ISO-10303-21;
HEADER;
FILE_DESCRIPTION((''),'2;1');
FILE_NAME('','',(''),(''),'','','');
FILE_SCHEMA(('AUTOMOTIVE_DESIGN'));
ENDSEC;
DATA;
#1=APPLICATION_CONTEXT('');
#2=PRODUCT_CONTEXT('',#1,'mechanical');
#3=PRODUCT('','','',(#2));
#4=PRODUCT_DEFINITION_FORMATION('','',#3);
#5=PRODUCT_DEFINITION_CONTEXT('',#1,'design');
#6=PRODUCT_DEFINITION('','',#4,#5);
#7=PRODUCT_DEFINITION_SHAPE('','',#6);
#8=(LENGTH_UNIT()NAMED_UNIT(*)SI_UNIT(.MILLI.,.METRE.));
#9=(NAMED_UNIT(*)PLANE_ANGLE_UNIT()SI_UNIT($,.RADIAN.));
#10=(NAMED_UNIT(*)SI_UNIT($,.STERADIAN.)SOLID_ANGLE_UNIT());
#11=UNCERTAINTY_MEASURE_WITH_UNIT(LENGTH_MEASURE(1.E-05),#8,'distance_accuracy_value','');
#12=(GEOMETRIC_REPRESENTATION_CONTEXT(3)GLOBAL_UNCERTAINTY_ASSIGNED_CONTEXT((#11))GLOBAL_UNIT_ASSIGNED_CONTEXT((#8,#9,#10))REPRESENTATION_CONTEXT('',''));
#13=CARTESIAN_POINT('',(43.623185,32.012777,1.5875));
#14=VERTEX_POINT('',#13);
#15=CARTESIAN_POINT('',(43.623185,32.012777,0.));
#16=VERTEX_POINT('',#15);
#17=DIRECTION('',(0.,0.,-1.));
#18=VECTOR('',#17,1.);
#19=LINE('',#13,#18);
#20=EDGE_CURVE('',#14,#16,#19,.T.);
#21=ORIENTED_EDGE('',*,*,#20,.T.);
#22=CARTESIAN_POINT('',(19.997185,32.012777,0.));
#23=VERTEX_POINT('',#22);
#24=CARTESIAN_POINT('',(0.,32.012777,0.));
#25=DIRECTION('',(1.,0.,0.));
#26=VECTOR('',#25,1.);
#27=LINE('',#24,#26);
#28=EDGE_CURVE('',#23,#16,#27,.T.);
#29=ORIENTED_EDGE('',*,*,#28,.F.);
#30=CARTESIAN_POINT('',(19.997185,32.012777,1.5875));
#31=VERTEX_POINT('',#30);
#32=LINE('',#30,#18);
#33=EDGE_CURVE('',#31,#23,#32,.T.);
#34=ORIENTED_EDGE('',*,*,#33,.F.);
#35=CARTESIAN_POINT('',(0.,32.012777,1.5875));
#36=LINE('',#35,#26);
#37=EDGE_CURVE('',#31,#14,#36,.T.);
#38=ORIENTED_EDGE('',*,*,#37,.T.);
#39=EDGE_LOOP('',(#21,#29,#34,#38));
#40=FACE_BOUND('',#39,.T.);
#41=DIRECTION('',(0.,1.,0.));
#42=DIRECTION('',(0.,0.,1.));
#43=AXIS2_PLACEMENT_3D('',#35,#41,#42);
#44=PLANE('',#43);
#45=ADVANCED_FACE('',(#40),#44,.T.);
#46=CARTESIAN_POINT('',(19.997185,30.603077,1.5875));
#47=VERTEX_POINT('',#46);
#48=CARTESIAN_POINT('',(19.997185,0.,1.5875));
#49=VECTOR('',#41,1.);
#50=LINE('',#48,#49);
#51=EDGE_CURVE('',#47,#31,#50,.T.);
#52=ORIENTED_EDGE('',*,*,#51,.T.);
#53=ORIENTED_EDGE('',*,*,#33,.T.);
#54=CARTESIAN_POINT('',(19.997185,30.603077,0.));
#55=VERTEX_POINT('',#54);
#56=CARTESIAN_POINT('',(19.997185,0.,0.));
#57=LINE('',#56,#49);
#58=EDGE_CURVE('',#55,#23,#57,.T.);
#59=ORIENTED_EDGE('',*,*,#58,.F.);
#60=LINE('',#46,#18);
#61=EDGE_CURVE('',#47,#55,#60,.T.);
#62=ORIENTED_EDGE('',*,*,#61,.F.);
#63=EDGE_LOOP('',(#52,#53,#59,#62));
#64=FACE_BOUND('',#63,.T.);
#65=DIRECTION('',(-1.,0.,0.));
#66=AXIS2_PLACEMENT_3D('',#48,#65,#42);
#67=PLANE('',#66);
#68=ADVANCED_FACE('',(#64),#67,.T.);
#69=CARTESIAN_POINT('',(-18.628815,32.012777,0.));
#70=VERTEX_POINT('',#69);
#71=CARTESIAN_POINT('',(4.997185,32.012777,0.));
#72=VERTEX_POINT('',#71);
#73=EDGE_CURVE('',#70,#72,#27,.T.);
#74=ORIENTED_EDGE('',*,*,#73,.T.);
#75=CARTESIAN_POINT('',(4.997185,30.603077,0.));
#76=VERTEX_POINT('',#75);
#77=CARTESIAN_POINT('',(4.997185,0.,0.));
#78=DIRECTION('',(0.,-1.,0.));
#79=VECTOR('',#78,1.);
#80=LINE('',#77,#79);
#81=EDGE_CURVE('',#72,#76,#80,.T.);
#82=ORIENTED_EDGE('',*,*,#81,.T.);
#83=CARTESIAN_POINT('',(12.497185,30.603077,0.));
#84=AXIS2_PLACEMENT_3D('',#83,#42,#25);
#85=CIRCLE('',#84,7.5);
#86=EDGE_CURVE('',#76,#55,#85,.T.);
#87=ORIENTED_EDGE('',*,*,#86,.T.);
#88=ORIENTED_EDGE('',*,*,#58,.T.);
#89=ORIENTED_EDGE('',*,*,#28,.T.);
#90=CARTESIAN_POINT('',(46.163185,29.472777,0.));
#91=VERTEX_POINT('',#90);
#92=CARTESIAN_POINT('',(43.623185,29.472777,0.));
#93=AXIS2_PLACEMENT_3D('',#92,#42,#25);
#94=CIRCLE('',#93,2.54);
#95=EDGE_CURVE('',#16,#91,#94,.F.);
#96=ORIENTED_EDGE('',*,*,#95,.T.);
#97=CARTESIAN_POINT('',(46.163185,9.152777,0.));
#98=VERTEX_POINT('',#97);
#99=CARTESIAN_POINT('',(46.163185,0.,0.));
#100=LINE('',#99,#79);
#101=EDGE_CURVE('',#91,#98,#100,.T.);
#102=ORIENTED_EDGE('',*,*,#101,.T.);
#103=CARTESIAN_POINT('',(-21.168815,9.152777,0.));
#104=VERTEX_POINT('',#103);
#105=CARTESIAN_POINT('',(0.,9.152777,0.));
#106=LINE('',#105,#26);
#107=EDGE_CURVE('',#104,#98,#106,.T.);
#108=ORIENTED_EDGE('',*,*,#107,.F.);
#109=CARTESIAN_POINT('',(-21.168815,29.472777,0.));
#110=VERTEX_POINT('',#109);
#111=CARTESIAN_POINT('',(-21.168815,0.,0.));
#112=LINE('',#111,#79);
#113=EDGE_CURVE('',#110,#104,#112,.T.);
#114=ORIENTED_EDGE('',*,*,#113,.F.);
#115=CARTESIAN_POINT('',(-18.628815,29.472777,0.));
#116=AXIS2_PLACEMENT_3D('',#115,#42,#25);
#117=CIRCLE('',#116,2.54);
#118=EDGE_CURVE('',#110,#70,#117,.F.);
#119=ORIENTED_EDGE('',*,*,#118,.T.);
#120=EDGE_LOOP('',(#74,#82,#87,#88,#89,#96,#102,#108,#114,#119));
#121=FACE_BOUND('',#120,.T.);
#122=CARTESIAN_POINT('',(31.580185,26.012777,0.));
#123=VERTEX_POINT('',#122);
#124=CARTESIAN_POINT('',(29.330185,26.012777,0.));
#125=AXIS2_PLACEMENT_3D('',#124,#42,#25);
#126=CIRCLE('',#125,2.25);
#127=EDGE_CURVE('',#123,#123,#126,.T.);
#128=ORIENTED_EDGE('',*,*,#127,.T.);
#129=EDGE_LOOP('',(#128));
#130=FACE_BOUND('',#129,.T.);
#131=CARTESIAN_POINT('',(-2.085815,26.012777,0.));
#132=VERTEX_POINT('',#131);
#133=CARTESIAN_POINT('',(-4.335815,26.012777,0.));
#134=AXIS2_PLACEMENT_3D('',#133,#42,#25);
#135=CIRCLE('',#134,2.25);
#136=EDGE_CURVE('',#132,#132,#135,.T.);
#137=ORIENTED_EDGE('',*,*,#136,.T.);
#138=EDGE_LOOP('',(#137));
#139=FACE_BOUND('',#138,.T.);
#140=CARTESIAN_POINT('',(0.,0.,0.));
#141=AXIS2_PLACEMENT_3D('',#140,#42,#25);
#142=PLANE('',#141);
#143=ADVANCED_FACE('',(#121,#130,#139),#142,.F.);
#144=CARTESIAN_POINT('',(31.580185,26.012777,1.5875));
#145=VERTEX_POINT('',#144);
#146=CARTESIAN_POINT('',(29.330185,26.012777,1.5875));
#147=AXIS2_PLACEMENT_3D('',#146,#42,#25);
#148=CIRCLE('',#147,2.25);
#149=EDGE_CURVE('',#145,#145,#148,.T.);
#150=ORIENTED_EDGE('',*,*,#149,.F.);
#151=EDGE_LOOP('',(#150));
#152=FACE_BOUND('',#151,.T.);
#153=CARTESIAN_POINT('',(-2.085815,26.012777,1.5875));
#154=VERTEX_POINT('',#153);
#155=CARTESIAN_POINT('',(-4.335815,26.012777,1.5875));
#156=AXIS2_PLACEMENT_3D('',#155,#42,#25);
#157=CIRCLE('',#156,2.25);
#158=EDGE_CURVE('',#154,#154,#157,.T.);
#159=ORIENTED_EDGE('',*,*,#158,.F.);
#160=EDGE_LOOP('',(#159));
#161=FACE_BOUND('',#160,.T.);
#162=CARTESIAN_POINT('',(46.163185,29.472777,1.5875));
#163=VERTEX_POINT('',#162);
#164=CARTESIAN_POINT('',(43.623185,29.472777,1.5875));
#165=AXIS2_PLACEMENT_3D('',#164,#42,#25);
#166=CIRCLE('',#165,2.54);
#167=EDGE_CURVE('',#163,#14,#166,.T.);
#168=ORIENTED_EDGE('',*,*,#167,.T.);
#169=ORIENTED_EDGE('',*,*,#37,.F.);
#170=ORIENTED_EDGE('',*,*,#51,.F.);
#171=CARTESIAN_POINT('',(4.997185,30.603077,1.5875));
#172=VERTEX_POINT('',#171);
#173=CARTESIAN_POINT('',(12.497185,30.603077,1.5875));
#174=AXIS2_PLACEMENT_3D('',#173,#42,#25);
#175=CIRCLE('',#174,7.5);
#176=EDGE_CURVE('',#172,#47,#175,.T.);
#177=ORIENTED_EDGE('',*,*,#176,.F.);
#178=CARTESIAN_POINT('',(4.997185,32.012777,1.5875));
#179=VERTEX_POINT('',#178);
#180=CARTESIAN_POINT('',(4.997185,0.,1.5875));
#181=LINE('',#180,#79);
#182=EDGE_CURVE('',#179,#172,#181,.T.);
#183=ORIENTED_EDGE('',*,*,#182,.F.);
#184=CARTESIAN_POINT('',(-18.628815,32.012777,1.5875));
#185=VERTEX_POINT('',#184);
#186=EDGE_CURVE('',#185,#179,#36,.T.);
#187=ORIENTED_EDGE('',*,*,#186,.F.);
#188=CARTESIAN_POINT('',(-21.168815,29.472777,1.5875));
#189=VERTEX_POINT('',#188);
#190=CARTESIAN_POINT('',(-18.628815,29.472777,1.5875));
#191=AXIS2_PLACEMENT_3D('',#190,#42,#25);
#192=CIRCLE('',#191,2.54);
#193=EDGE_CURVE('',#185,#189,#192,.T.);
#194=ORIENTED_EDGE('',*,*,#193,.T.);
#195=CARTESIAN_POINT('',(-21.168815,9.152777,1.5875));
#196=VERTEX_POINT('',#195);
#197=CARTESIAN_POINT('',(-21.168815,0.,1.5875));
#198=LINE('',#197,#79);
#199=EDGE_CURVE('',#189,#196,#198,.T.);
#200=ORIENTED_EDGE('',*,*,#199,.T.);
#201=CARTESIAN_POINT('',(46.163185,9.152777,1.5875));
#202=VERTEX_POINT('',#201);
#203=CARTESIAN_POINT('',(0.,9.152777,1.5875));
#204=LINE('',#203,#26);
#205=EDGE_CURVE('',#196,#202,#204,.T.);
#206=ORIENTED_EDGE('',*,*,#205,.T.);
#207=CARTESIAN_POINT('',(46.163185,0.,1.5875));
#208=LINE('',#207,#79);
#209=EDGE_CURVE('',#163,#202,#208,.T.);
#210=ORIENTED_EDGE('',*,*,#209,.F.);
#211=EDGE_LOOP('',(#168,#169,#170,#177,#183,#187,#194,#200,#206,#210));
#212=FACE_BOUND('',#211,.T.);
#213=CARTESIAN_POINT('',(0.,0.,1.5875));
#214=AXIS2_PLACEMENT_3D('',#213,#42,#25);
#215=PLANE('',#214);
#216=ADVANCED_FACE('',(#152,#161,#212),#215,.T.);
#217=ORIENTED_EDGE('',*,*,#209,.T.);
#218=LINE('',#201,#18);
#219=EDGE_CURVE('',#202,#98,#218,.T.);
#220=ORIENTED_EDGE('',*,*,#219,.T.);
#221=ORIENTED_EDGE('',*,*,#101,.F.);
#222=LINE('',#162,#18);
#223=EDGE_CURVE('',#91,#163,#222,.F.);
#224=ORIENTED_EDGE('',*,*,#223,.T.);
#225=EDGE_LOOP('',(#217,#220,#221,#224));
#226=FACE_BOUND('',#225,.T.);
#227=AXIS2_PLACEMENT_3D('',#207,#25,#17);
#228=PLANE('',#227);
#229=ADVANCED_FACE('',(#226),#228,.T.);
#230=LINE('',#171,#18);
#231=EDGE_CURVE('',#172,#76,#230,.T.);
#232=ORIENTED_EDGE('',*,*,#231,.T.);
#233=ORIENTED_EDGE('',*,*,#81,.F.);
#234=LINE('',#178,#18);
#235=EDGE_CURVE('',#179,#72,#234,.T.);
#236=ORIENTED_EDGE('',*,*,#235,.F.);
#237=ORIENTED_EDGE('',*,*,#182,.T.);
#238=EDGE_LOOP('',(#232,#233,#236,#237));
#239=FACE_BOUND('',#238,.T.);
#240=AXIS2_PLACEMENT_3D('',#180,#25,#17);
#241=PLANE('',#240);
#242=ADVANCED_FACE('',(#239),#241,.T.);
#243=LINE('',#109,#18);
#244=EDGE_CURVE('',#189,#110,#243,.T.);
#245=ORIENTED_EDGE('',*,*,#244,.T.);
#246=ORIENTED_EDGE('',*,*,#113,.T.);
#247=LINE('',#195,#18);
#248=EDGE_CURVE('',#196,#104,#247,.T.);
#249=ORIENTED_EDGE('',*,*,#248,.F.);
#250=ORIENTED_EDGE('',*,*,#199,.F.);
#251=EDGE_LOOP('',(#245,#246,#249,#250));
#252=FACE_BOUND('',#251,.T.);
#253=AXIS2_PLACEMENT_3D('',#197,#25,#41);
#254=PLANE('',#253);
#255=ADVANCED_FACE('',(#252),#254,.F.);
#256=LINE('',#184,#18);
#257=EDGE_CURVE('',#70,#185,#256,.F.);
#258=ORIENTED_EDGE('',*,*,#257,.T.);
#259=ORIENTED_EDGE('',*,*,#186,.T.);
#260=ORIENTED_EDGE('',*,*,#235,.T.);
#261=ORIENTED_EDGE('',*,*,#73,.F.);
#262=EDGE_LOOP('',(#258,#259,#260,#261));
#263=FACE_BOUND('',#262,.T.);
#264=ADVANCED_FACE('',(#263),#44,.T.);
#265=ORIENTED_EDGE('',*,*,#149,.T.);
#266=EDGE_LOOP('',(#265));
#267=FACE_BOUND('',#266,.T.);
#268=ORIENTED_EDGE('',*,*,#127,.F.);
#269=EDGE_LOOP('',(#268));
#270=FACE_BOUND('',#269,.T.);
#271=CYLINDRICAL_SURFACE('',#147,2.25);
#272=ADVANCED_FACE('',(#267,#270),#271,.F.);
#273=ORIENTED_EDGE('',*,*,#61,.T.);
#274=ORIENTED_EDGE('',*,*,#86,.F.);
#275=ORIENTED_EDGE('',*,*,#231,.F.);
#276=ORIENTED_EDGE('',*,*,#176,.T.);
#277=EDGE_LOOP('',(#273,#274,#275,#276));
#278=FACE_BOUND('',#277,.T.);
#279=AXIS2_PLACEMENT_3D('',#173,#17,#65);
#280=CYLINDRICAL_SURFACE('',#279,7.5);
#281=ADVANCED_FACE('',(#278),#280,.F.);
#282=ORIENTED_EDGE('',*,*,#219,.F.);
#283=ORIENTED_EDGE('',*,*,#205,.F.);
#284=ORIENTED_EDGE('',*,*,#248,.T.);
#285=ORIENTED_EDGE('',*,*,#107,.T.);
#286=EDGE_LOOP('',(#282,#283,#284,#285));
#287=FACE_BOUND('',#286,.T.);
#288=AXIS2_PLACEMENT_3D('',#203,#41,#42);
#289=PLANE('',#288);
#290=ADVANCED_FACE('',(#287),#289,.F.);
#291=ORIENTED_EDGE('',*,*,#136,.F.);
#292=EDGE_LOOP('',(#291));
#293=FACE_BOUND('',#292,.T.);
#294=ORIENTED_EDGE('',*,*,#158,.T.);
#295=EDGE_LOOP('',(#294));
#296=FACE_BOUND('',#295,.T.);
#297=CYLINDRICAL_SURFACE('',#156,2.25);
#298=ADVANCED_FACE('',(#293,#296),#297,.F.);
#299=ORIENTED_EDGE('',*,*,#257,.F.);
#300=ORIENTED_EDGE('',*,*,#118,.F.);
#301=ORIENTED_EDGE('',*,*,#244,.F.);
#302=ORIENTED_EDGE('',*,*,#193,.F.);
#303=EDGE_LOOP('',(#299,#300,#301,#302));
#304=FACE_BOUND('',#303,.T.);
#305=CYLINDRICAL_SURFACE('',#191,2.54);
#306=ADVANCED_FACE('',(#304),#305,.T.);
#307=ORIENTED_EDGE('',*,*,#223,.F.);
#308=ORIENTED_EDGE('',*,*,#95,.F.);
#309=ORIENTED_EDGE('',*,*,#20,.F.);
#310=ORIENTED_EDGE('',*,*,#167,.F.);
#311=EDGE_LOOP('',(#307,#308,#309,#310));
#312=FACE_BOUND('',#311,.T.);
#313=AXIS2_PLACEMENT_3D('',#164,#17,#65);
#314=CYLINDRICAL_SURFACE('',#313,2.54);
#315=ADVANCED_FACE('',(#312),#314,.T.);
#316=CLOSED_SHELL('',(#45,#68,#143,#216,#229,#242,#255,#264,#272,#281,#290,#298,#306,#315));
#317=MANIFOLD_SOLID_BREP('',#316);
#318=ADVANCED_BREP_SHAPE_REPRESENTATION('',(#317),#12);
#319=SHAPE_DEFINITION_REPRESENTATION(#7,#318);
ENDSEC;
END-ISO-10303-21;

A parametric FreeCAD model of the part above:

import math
import FreeCAD as App
import Part
import Sketcher
Q = App.Units.Quantity


def edges_at(feature, points):
    """Names of the edges that pass closest to the given points."""
    edges = feature.Shape.Edges
    near = lambda p: min(range(len(edges)), key=lambda i: edges[i].distToShape(Part.Vertex(*p))[0])
    return sorted({f"Edge{near(p) + 1}" for p in points})

doc = App.newDocument("Part")
params = doc.addObject("Spreadsheet::Sheet", "Params")
for row, (alias, value) in enumerate([
    ("sketch1_height", "0.9 in"),
    ("pad1_length", "0.0625 in"),
    ("hole_diameter", "4.5 mm"),
    ("fillet_radius", "0.1 in"),
], start=1):
    params.set(f"A{row}", alias)
    params.set(f"B{row}", "=" + value)
    params.setAlias(f"B{row}", alias)

body = doc.addObject("PartDesign::Body", "Body")

sketch1 = body.newObject("Sketcher::SketchObject", "Sketch")
sketch1.AttachmentSupport = (doc.getObject("XY_Plane"), [""])
sketch1.MapMode = "FlatFace"
sketch1.addGeometry([
    Part.LineSegment(App.Vector(5, 32, 0), App.Vector(-21.2, 32, 0)),
    Part.LineSegment(App.Vector(-21.2, 32, 0), App.Vector(-21.2, 9.2, 0)),
    Part.LineSegment(App.Vector(-21.2, 9.2, 0), App.Vector(46.2, 9.2, 0)),
    Part.LineSegment(App.Vector(46.2, 9.2, 0), App.Vector(46.2, 32, 0)),
    Part.LineSegment(App.Vector(46.2, 32, 0), App.Vector(20, 32, 0)),
    Part.LineSegment(App.Vector(20, 32, 0), App.Vector(20, 30.6, 0)),
    Part.ArcOfCircle(Part.Circle(App.Vector(12.5, 30.6, 0), App.Vector(0, 0, 1), 7.5), math.radians(180), math.radians(360)),
    Part.LineSegment(App.Vector(5, 30.6, 0), App.Vector(5, 32, 0)),
], False)
sketch1.addConstraint([
    Sketcher.Constraint("Coincident", 0, 2, 1, 1),
    Sketcher.Constraint("Coincident", 1, 2, 2, 1),
    Sketcher.Constraint("Coincident", 2, 2, 3, 1),
    Sketcher.Constraint("Coincident", 3, 2, 4, 1),
    Sketcher.Constraint("Coincident", 4, 2, 5, 1),
    Sketcher.Constraint("Tangent", 5, 2, 6, 2),
    Sketcher.Constraint("Tangent", 6, 1, 7, 1),
    Sketcher.Constraint("Coincident", 7, 2, 0, 1),
    Sketcher.Constraint("Horizontal", 0),
    Sketcher.Constraint("Vertical", 1),
    Sketcher.Constraint("Horizontal", 2),
    Sketcher.Constraint("Vertical", 3),
    Sketcher.Constraint("Horizontal", 4),
    Sketcher.Constraint("Vertical", 5),
    Sketcher.Constraint("Vertical", 7),
    Sketcher.Constraint("Horizontal", 0, 2, 3, 2),
    Sketcher.Constraint("Equal", 0, 4),
    Sketcher.Constraint("DistanceY", 1, 2, 1, 1, Q("0.9 in")),
    Sketcher.Constraint("Radius", 6, Q("7.5 mm")),
    Sketcher.Constraint("DistanceY", 5, 2, 5, 1, Q("0.0555 in")),
    Sketcher.Constraint("DistanceX", 0, 2, 0, 1, Q("26.166 mm")),
    Sketcher.Constraint("DistanceX", -1, 1, 6, 3, Q("12.497185 mm")),
    Sketcher.Constraint("DistanceY", -1, 1, 6, 3, Q("30.603077 mm")),
])
sketch1.setExpression("Constraints[17]", "Params.sketch1_height")
pad1 = body.newObject("PartDesign::Pad", "Pad")
pad1.Profile = sketch1
pad1.setExpression("Length", "Params.pad1_length")

sketch2 = body.newObject("Sketcher::SketchObject", "Sketch001")
sketch2.AttachmentSupport = (doc.getObject("XY_Plane"), [""])
sketch2.MapMode = "FlatFace"
sketch2.AttachmentOffset = App.Placement(App.Vector(0, 0, 0.0625 * 25.4), App.Rotation())
sketch2.addGeometry([
    Part.Circle(App.Vector(-4.3, 26, 0), App.Vector(0, 0, 1), 2.2),
    Part.Circle(App.Vector(29.3, 26, 0), App.Vector(0, 0, 1), 2.2),
], False)
sketch2.addConstraint([
    Sketcher.Constraint("Equal", 0, 1),
    Sketcher.Constraint("Horizontal", 0, 3, 1, 3),
    Sketcher.Constraint("Diameter", 0, Q("4.5 mm")),
    Sketcher.Constraint("DistanceX", 0, 3, 1, 3, Q("33.666 mm")),
    Sketcher.Constraint("DistanceX", 0, 3, -1, 1, Q("4.335815 mm")),
    Sketcher.Constraint("DistanceY", -1, 1, 0, 3, Q("26.012777 mm")),
])
doc.recompute()
hole = body.newObject("PartDesign::Hole", "Hole")
hole.Profile = sketch2
hole.ThreadType = "None"
hole.setExpression("Diameter", "Params.hole_diameter")
hole.DepthType = "ThroughAll"
doc.recompute()

fillet = body.newObject("PartDesign::Fillet", "Fillet")
fillet.Base = (hole, edges_at(hole, [(46.163, 32.013, 0.794), (-21.169, 32.013, 0.794)]))
fillet.setExpression("Radius", "Params.fillet_radius")

doc.recompute()
